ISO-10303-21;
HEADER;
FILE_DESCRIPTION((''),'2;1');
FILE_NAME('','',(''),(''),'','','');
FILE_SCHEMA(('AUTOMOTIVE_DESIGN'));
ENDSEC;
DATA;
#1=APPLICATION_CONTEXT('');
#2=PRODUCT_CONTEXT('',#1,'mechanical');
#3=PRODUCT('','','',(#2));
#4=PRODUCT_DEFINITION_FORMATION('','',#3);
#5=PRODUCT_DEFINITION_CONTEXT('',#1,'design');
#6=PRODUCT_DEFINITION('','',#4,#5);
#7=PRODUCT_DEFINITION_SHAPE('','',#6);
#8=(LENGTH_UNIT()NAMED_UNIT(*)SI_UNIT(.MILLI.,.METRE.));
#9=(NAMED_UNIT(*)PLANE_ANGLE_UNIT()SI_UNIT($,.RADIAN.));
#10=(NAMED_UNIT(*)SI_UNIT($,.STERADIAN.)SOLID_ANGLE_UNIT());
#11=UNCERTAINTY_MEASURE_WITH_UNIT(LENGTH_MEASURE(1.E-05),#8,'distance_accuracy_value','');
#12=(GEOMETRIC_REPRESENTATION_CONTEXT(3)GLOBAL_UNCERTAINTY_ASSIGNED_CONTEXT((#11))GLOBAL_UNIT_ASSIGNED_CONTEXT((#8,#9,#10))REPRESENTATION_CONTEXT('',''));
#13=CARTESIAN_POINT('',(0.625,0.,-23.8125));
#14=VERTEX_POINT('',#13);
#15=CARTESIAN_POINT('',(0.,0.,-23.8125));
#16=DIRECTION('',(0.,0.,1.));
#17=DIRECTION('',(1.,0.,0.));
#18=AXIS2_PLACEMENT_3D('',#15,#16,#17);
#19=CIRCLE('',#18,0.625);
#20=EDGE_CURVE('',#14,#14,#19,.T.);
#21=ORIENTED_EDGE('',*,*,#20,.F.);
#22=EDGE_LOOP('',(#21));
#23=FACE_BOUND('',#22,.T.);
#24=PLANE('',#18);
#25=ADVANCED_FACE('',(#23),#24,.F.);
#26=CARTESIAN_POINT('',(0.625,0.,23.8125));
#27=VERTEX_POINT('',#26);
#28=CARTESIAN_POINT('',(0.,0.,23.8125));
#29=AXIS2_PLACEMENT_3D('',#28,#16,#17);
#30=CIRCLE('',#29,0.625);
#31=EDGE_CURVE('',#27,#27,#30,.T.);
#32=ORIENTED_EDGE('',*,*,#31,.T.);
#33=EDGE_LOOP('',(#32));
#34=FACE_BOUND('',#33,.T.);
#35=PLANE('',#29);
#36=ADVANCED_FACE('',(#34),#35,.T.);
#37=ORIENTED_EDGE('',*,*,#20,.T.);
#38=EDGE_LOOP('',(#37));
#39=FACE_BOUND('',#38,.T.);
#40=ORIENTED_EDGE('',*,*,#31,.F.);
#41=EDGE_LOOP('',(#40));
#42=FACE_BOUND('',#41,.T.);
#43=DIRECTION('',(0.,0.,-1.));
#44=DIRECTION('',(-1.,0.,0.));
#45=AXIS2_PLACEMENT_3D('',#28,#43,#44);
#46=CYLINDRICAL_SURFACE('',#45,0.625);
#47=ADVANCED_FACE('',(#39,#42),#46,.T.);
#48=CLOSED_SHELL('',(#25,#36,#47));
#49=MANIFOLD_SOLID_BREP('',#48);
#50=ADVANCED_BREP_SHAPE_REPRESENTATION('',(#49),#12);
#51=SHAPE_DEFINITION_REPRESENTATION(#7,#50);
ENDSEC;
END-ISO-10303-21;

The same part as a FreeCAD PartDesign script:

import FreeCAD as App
import Part
import Sketcher

V = App.Vector
Q = App.Units.Quantity

doc = App.newDocument("Part")
body = doc.addObject("PartDesign::Body", "Body")

# Sketch on XY plane
sketch1 = body.newObject("Sketcher::SketchObject", "Sketch")
sketch1.AttachmentSupport = (doc.getObject("XY_Plane"), [""])
sketch1.MapMode = "FlatFace"
sketch1.addGeometry(Part.Circle(V(0, 0, 0), V(0, 0, 1), 0.625), False)
sketch1.addConstraint(Sketcher.Constraint("Coincident", 0, 3, -1, 1))
sketch1.addConstraint(Sketcher.Constraint("Diameter", 0, 1.25))
pad1 = body.newObject("PartDesign::Pad", "Pad")
pad1.Profile = sketch1
pad1.Type = "TwoLengths"
pad1.Length = Q("0.9375 in")
pad1.Length2 = Q("0.9375 in")

doc.recompute()
